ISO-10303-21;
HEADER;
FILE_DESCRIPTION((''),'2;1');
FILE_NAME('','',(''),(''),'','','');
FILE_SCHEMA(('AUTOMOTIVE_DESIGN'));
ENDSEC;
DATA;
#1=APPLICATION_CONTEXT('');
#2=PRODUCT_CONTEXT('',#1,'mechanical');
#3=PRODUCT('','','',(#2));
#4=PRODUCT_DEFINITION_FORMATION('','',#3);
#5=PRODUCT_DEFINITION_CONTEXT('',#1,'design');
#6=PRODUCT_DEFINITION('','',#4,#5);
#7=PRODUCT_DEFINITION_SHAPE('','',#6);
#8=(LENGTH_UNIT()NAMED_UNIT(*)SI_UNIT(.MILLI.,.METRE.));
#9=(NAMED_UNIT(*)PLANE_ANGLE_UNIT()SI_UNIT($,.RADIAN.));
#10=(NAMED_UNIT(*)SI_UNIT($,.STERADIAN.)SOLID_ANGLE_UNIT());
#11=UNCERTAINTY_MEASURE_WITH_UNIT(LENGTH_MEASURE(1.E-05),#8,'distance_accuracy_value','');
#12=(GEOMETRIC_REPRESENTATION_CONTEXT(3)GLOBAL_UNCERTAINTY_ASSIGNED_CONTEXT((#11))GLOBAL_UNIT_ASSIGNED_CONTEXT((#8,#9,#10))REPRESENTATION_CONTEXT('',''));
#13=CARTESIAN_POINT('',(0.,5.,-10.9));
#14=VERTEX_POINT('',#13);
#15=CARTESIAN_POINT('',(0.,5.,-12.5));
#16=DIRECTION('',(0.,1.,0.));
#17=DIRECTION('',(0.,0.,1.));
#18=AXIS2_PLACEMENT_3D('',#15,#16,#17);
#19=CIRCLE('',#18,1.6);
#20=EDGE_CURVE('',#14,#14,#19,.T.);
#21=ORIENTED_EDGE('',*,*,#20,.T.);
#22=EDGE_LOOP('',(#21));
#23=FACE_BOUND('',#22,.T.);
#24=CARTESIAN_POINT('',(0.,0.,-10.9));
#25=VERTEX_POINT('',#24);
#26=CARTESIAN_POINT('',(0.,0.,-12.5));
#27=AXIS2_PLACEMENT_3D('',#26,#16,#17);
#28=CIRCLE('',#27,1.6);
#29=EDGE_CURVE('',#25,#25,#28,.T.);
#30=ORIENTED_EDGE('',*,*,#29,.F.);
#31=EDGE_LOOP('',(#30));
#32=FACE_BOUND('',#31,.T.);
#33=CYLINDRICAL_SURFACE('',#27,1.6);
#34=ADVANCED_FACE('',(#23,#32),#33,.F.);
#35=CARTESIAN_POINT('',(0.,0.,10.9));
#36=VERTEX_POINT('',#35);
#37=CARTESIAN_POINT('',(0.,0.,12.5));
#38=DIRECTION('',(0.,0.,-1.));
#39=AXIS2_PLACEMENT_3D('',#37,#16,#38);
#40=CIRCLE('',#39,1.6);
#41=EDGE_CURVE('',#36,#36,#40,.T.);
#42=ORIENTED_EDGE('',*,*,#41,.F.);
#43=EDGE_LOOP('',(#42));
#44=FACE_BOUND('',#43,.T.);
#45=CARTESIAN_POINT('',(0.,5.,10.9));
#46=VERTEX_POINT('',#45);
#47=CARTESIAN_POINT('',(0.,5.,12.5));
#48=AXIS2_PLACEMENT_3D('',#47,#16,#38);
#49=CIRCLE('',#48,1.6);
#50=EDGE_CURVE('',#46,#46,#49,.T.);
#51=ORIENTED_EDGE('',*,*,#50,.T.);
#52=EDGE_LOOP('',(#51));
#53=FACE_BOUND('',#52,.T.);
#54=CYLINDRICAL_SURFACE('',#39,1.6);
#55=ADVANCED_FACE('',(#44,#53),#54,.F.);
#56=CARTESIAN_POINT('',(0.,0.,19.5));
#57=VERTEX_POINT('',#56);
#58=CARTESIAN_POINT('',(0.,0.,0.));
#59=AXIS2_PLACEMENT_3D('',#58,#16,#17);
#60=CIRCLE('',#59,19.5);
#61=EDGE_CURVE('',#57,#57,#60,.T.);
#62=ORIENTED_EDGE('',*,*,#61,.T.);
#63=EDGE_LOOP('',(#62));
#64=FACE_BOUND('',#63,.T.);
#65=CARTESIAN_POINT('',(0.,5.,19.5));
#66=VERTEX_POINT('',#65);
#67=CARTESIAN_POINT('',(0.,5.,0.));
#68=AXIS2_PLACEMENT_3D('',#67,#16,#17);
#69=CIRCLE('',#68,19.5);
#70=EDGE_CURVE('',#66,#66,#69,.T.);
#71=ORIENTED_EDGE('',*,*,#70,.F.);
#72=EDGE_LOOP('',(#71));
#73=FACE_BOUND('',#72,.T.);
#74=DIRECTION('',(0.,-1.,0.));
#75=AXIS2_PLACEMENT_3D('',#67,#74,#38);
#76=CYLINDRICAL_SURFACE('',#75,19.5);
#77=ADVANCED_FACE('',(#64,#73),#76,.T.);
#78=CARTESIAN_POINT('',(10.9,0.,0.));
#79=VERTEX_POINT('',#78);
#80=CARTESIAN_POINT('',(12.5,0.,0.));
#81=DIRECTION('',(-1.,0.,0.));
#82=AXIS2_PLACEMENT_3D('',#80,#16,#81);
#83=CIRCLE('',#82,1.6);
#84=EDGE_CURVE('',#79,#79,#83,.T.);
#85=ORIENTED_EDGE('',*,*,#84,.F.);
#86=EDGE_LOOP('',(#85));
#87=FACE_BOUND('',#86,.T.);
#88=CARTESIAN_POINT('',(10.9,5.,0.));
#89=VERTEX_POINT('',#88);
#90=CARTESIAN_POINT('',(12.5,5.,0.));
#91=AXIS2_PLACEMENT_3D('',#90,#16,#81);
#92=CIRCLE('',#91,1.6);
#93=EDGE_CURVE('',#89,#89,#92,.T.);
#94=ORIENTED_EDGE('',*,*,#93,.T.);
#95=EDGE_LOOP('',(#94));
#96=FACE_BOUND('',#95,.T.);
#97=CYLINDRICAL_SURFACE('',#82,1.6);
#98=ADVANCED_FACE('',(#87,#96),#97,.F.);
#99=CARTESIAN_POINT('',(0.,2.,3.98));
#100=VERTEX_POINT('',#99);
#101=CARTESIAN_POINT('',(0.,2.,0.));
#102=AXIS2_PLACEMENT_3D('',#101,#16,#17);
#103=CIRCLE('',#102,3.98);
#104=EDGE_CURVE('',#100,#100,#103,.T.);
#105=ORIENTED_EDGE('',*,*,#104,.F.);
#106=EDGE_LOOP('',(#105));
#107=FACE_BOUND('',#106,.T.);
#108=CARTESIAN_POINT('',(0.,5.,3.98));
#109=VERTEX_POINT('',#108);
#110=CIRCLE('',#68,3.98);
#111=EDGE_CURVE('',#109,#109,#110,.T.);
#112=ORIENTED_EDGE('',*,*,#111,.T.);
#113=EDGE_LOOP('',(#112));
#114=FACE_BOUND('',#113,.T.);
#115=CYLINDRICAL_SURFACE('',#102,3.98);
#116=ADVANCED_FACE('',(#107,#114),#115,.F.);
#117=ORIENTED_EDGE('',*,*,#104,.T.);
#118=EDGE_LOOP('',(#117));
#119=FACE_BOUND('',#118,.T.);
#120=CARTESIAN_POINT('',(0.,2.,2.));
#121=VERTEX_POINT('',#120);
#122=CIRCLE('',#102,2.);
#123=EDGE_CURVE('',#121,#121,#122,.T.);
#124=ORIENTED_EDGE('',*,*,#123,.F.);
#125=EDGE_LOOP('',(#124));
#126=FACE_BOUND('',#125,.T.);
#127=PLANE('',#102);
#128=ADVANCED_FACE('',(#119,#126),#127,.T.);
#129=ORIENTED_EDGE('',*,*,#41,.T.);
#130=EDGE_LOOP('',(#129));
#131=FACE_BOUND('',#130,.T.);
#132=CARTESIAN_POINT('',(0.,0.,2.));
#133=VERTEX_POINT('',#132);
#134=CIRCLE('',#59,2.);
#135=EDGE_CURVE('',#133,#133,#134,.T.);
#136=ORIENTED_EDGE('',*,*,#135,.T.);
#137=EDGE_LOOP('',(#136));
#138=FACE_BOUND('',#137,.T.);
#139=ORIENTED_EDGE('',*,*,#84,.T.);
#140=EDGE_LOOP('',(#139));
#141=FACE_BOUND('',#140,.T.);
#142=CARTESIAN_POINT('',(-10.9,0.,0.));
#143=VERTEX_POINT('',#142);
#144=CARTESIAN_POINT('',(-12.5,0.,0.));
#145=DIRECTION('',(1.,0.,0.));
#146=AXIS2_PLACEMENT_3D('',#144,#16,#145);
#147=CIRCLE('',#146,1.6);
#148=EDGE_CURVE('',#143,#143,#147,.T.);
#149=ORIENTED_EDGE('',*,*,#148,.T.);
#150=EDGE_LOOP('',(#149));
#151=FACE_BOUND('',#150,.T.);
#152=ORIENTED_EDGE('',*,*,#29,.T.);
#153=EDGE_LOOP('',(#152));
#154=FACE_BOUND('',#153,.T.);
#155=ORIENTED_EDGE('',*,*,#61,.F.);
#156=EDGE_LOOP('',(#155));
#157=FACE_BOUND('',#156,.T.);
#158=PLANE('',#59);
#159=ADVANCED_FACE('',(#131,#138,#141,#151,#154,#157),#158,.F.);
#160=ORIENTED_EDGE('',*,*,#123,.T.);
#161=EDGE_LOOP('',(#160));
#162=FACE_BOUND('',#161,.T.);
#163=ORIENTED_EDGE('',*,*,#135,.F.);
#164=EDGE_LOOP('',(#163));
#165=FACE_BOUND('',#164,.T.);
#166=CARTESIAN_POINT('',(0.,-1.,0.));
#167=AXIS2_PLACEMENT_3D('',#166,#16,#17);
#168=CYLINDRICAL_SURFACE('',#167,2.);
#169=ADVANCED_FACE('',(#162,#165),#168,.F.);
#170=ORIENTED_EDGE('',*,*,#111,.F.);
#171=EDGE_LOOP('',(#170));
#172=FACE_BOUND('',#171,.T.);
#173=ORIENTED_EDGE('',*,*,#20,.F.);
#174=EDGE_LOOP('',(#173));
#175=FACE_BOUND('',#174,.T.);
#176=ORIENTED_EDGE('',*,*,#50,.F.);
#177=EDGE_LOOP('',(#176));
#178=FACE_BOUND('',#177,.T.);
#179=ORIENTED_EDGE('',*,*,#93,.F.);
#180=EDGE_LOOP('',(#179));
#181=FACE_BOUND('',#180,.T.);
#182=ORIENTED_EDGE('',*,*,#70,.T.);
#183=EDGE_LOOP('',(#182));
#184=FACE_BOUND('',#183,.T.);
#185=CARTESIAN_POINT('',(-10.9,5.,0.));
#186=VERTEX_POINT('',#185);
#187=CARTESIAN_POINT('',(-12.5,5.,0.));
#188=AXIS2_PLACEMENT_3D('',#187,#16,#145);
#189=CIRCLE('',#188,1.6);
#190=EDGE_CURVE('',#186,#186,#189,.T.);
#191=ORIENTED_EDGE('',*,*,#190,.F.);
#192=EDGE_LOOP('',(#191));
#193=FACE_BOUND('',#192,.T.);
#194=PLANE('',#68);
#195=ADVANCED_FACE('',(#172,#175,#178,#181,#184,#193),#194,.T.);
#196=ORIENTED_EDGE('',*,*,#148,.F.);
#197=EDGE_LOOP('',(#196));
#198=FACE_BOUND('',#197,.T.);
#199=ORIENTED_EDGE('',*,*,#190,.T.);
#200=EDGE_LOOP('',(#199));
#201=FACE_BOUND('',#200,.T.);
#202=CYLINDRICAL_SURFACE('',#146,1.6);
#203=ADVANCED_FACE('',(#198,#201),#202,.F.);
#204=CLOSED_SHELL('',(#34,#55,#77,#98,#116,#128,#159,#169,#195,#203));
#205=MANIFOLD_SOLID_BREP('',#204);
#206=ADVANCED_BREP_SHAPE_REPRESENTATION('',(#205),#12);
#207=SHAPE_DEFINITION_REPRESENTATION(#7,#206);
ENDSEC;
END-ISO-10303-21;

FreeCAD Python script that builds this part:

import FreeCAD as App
import Part
import Sketcher

doc = App.newDocument("Part")
body = doc.addObject("PartDesign::Body", "Body")

# Sketch on XZ plane
sketch1 = body.newObject("Sketcher::SketchObject", "Sketch")
sketch1.AttachmentSupport = (doc.getObject("XZ_Plane"), [""])
sketch1.MapMode = "FlatFace"
sketch1.addGeometry(Part.Circle(App.Vector(0, 0, 0), App.Vector(0, 0, 1), 19.5), False)
sketch1.addConstraint([
    Sketcher.Constraint("Coincident", 0, 3, -1, 1),
    Sketcher.Constraint("Diameter", 0, 39.0),
])
pad1 = body.newObject("PartDesign::Pad", "Pad")
pad1.Profile = sketch1
pad1.Length = 5
pad1.Reversed = True

# Sketch on XZ plane
sketch2 = body.newObject("Sketcher::SketchObject", "Sketch001")
sketch2.AttachmentSupport = (doc.getObject("XZ_Plane"), [""])
sketch2.MapMode = "FlatFace"
sketch2.AttachmentOffset = App.Placement(App.Vector(0, 0, -5), App.Rotation())
sketch2.addGeometry(Part.Circle(App.Vector(0, 0, 0), App.Vector(0, 0, 1), 3.98), False)
sketch2.addConstraint([
    Sketcher.Constraint("Coincident", 0, 3, -1, 1),
    Sketcher.Constraint("Diameter", 0, 7.96),
])
pocket1 = body.newObject("PartDesign::Pocket", "Pocket")
pocket1.Profile = sketch2
pocket1.Length = 3
pocket1.Reversed = True

# Sketch on XZ plane
sketch3 = body.newObject("Sketcher::SketchObject", "Sketch002")
sketch3.AttachmentSupport = (doc.getObject("XZ_Plane"), [""])
sketch3.MapMode = "FlatFace"
sketch3.AttachmentOffset = App.Placement(App.Vector(0, 0, -2), App.Rotation())
sketch3.addGeometry(Part.Circle(App.Vector(0, 0, 0), App.Vector(0, 0, 1), 2), False)
sketch3.addConstraint([
    Sketcher.Constraint("Coincident", 0, 3, -1, 1),
    Sketcher.Constraint("Diameter", 0, 4.0),
])
pocket2 = body.newObject("PartDesign::Pocket", "Pocket001")
pocket2.Profile = sketch3
pocket2.Length = 3
pocket2.Reversed = True

# Sketch on XZ plane
sketch4 = body.newObject("Sketcher::SketchObject", "Sketch003")
sketch4.AttachmentSupport = (doc.getObject("XZ_Plane"), [""])
sketch4.MapMode = "FlatFace"
sketch4.AttachmentOffset = App.Placement(App.Vector(0, 0, -5), App.Rotation())
sketch4.addGeometry(Part.Circle(App.Vector(0, -12.5, 0), App.Vector(0, 0, 1), 1.6), False)
sketch4.addConstraint([
    Sketcher.Constraint("PointOnObject", 0, 3, -2),
    Sketcher.Constraint("Diameter", 0, 3.2),
    Sketcher.Constraint("DistanceY", 0, 3, -1, 1, 12.5),
])
pocket3 = body.newObject("PartDesign::Pocket", "Pocket002")
pocket3.Profile = sketch4
pocket3.Type = "ThroughAll"
pocket3.Reversed = True
doc.recompute()

polarpattern = body.newObject("PartDesign::PolarPattern", "PolarPattern")
polarpattern.Originals = [pocket3]
polarpattern.Axis = (doc.getObject("Y_Axis"), [""])
polarpattern.Angle = 360
polarpattern.Occurrences = 4
body.Tip = polarpattern

doc.recompute()
